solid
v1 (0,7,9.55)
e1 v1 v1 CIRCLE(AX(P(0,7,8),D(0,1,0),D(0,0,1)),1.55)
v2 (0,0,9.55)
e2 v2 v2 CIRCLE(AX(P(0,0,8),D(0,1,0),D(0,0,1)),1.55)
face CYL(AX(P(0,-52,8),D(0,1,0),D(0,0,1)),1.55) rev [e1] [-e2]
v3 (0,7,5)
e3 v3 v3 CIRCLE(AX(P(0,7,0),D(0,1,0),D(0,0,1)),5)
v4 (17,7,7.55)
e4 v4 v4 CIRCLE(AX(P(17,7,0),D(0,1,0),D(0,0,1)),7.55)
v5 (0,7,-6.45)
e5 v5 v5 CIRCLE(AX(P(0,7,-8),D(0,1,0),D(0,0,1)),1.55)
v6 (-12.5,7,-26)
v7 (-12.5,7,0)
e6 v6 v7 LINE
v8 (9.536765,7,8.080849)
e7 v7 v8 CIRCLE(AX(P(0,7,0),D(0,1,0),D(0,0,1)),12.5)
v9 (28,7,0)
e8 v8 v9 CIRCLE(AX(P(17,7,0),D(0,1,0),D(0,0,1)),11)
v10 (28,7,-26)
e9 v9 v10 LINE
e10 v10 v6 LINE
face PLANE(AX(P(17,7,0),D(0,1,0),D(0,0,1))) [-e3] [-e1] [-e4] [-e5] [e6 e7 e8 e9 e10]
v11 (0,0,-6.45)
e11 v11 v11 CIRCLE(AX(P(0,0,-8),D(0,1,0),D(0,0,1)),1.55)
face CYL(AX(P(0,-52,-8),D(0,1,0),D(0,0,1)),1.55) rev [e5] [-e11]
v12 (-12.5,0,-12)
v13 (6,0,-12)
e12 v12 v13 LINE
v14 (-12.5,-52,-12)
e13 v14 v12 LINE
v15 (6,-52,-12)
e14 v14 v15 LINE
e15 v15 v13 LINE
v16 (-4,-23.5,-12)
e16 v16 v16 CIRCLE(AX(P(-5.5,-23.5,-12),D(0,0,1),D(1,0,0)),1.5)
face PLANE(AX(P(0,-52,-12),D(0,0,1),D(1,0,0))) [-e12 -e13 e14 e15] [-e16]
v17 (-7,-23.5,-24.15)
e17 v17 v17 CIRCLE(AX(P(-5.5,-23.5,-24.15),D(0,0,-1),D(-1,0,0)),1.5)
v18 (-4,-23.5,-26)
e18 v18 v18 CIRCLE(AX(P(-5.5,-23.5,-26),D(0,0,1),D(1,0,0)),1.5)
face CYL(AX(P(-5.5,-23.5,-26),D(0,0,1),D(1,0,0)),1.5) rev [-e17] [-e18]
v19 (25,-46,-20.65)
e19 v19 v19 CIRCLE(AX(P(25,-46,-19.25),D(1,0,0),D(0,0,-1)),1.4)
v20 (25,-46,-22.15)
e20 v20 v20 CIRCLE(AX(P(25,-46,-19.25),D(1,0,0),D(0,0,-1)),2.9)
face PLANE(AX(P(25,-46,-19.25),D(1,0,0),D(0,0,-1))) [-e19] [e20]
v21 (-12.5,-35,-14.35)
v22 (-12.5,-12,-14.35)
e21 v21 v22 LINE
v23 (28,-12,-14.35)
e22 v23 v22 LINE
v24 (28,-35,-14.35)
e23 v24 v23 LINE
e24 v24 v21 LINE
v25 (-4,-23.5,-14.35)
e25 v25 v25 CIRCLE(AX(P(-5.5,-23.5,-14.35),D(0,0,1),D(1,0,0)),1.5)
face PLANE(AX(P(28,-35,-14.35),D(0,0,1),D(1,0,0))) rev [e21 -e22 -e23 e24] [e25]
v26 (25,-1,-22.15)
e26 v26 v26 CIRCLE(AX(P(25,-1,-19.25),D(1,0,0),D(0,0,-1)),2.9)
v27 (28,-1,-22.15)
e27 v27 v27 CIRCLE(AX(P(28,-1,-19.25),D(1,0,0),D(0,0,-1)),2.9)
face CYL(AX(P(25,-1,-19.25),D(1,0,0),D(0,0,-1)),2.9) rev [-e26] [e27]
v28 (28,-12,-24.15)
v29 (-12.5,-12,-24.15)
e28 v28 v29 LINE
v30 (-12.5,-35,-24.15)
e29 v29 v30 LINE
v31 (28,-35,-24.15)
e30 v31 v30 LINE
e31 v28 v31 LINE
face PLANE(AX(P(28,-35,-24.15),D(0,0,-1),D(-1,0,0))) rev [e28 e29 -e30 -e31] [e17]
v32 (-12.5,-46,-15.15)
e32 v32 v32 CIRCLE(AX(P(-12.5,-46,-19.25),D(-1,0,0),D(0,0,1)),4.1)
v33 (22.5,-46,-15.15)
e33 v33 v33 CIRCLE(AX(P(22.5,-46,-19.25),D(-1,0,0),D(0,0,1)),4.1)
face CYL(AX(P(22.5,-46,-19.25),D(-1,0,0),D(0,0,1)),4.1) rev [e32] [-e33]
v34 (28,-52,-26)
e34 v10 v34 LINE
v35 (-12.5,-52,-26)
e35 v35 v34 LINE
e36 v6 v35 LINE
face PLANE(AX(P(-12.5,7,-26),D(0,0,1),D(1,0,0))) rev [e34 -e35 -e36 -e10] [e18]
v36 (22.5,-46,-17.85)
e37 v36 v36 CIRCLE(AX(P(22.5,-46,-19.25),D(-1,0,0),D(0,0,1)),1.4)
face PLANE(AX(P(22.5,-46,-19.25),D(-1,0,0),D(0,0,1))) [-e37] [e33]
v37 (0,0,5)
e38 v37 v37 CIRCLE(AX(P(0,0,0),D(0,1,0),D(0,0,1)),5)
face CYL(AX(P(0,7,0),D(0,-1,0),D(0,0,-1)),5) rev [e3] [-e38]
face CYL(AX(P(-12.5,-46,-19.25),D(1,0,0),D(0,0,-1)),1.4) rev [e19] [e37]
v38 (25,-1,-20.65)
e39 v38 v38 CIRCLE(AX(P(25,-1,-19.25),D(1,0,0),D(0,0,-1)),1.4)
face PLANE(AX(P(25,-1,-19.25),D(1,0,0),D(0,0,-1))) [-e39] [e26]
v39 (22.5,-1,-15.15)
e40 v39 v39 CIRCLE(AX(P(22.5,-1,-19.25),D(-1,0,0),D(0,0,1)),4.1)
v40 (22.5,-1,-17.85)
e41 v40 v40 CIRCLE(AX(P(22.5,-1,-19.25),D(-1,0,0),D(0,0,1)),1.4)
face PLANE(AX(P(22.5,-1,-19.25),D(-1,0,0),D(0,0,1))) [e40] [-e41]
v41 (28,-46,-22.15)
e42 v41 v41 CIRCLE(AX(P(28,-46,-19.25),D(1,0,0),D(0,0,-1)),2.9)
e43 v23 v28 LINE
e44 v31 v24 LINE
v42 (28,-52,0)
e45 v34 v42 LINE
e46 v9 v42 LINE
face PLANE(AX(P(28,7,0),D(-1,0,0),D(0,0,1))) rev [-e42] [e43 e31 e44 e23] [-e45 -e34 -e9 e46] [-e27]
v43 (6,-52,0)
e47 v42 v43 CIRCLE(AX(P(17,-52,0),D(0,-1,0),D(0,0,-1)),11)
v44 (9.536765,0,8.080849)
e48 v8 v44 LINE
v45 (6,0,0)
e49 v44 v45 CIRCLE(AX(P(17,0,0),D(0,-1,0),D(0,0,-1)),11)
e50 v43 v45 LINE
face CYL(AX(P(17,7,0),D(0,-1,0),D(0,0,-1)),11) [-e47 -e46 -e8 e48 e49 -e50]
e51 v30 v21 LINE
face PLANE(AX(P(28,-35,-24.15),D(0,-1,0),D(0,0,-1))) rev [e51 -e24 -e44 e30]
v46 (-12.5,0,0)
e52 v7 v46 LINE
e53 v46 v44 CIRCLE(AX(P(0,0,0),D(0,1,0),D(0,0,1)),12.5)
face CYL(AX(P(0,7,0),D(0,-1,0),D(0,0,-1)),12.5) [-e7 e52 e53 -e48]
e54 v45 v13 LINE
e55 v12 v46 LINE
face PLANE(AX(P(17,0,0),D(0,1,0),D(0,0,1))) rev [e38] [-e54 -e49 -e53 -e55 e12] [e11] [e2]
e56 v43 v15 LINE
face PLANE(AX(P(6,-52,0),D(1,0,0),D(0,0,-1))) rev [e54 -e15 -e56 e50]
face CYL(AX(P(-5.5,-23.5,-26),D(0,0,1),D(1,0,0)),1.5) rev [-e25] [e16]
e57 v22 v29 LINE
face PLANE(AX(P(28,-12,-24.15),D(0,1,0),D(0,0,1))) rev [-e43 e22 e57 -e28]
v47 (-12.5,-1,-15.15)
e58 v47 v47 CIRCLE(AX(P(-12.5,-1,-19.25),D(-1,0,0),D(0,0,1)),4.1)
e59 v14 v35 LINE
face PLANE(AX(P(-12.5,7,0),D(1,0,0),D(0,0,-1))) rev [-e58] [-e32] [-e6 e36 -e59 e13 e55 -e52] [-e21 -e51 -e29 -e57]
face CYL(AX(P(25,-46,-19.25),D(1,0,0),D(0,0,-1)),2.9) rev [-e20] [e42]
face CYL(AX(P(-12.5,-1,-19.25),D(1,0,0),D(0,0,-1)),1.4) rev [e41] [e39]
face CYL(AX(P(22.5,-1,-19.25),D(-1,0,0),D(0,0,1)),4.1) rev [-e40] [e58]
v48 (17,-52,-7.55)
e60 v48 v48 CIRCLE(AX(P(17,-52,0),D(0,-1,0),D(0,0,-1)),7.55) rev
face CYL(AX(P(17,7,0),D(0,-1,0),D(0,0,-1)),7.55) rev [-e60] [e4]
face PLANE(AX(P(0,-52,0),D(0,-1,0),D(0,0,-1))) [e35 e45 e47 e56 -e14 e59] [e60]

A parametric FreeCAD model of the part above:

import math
import FreeCAD as App
import Part
import Sketcher
from FreeCAD import Vector
Q = App.Units.Quantity


def add_polygon(sketch, points):
    """Adds a closed chain of lines whose ends are joined by coincident constraints."""
    first, n = sketch.GeometryCount, len(points)
    for a, b in zip(points, points[1:] + points[:1]):
        sketch.addGeometry(Part.LineSegment(App.Vector(*a, 0), App.Vector(*b, 0)), False)
    for i in range(n):
        sketch.addConstraint(Sketcher.Constraint("Coincident", first + i, 2, first + (i + 1) % n, 1))

doc = App.newDocument("Part")
params = doc.addObject("Spreadsheet::Sheet", "Params")
for row, (alias, value) in enumerate([
    ("sketch1_diameter", "10 mm"),
    ("sketch1_radius", "11 mm"),
    ("sketch1_diameter2", "15.1 mm"),
    ("sketch1_radius2", "12.5 mm"),
    ("sketch1_height", "26 mm"),
    ("pad1_length", "7 mm"),
    ("sketch2_radius", "11 mm"),
    ("sketch2_diameter", "15.1 mm"),
    ("sketch2_height", "14 mm"),
    ("sketch2_height2", "26 mm"),
    ("sketch2_width", "40.5 mm"),
    ("pad2_length", "52 mm"),
    ("sketch3_diameter", "8.2 mm"),
    ("pocket1_length", "35 mm"),
    ("sketch4_width", "23 mm"),
    ("sketch4_height", "9.8 mm"),
    ("sketch5_diameter", "2.8 mm"),
    ("sketch6_diameter", "5.8 mm"),
    ("sketch6_diameter2", "2.8 mm"),
    ("pocket4_length", "3 mm"),
    ("sketch7_diameter", "3 mm"),
    ("sketch8_diameter", "3.1 mm"),
], start=1):
    params.set(f"A{row}", alias)
    params.set(f"B{row}", "=" + value)
    params.setAlias(f"B{row}", alias)

body = doc.addObject("PartDesign::Body", "Body")

# Sketch on XZ plane
sketch1 = body.newObject("Sketcher::SketchObject", "Sketch")
sketch1.AttachmentSupport = (doc.getObject("XZ_Plane"), [""])
sketch1.MapMode = "FlatFace"
sketch1.addGeometry([
    Part.LineSegment(Vector(28, 0, 0), Vector(28, -26, 0)),  # 0
    Part.LineSegment(Vector(28, -26, 0), Vector(-12.5, -26, 0)),  # 1
    Part.LineSegment(Vector(-12.5, -26, 0), Vector(-12.5, 0, 0)),  # 2
    Part.ArcOfCircle(Part.Circle(Vector(0, 0, 0), Vector(0, 0, 1), 12.5), math.radians(40.275824), math.radians(180)),  # 3
    Part.ArcOfCircle(Part.Circle(Vector(17, 0, 0), Vector(0, 0, 1), 11), math.radians(0), math.radians(132.724662)),  # 4
    Part.Circle(Vector(0, 0, 0), Vector(0, 0, 1), 5),  # 5
    Part.Circle(Vector(17, 0, 0), Vector(0, 0, 1), 7.55),  # 6
], False)
sketch1.addConstraint([
    Sketcher.Constraint("Coincident", 0, 2, 1, 1),
    Sketcher.Constraint("Coincident", 1, 2, 2, 1),
    Sketcher.Constraint("Tangent", 2, 2, 3, 2),
    Sketcher.Constraint("Coincident", 3, 1, 4, 2),
    Sketcher.Constraint("Tangent", 4, 1, 0, 1),
    Sketcher.Constraint("Vertical", 0),
    Sketcher.Constraint("Horizontal", 1),
    Sketcher.Constraint("Vertical", 2),
    Sketcher.Constraint("Coincident", 3, 3, -1, 1),
    Sketcher.Constraint("Coincident", 5, 3, -1, 1),
    Sketcher.Constraint("Coincident", 6, 3, 4, 3),
    Sketcher.Constraint("PointOnObject", 4, 3, -1),
    Sketcher.Constraint("Diameter", 5, Q("10 mm")),
    Sketcher.Constraint("Radius", 4, Q("11 mm")),
    Sketcher.Constraint("Diameter", 6, Q("15.1 mm")),
    Sketcher.Constraint("Radius", 3, Q("12.5 mm")),
    Sketcher.Constraint("DistanceY", 0, 2, 0, 1, Q("26 mm")),
    Sketcher.Constraint("DistanceX", 1, 2, 1, 1, Q("40.5 mm")),
])
sketch1.setExpression("Constraints[12]", "Params.sketch1_diameter")
sketch1.setExpression("Constraints[13]", "Params.sketch1_radius")
sketch1.setExpression("Constraints[14]", "Params.sketch1_diameter2")
sketch1.setExpression("Constraints[15]", "Params.sketch1_radius2")
sketch1.setExpression("Constraints[16]", "Params.sketch1_height")
pad1 = body.newObject("PartDesign::Pad", "Pad")
pad1.Profile = sketch1
pad1.setExpression("Length", "Params.pad1_length")
pad1.Reversed = True

# Sketch on XZ plane
sketch2 = body.newObject("Sketcher::SketchObject", "Sketch001")
sketch2.AttachmentSupport = (doc.getObject("XZ_Plane"), [""])
sketch2.MapMode = "FlatFace"
sketch2.addGeometry([
    Part.LineSegment(Vector(-12.5, -12, 0), Vector(-12.5, -26, 0)),  # 0
    Part.LineSegment(Vector(-12.5, -26, 0), Vector(28, -26, 0)),  # 1
    Part.LineSegment(Vector(28, -26, 0), Vector(28, 0, 0)),  # 2
    Part.ArcOfCircle(Part.Circle(Vector(17, 0, 0), Vector(0, 0, 1), 11), math.radians(0), math.radians(132.724662)),  # 3
    Part.ArcOfCircle(Part.Circle(Vector(17, 0, 0), Vector(0, 0, 1), 11), math.radians(132.724662), math.radians(180)),  # 4
    Part.LineSegment(Vector(6, 0, 0), Vector(6, -12, 0)),  # 5
    Part.LineSegment(Vector(6, -12, 0), Vector(-12.5, -12, 0)),  # 6
    Part.Circle(Vector(17, 0, 0), Vector(0, 0, 1), 7.55),  # 7
], False)
sketch2.addConstraint([
    Sketcher.Constraint("Coincident", 0, 2, 1, 1),
    Sketcher.Constraint("Coincident", 1, 2, 2, 1),
    Sketcher.Constraint("Tangent", 2, 2, 3, 1),
    Sketcher.Constraint("Tangent", 3, 2, 4, 1),
    Sketcher.Constraint("Tangent", 4, 2, 5, 1),
    Sketcher.Constraint("Coincident", 5, 2, 6, 1),
    Sketcher.Constraint("Coincident", 6, 2, 0, 1),
    Sketcher.Constraint("Vertical", 0),
    Sketcher.Constraint("Horizontal", 1),
    Sketcher.Constraint("Vertical", 2),
    Sketcher.Constraint("Vertical", 5),
    Sketcher.Constraint("Horizontal", 6),
    Sketcher.Constraint("Coincident", 7, 3, 3, 3),
    Sketcher.Constraint("Equal", 3, 4),
    Sketcher.Constraint("PointOnObject", 3, 3, -1),
    Sketcher.Constraint("Radius", 3, Q("11 mm")),
    Sketcher.Constraint("Diameter", 7, Q("15.1 mm")),
    Sketcher.Constraint("DistanceY", 0, 2, 0, 1, Q("14 mm")),
    Sketcher.Constraint("DistanceY", 2, 1, 2, 2, Q("26 mm")),
    Sketcher.Constraint("DistanceX", 1, 1, 1, 2, Q("40.5 mm")),
    Sketcher.Constraint("DistanceX", -1, 1, 3, 3, Q("17 mm")),
    Sketcher.Constraint("DistanceY", -1, 1, 3, 2, Q("8.080849 mm")),
])
sketch2.setExpression("Constraints[15]", "Params.sketch2_radius")
sketch2.setExpression("Constraints[16]", "Params.sketch2_diameter")
sketch2.setExpression("Constraints[17]", "Params.sketch2_height")
sketch2.setExpression("Constraints[18]", "Params.sketch2_height2")
sketch2.setExpression("Constraints[19]", "Params.sketch2_width")
pad2 = body.newObject("PartDesign::Pad", "Pad001")
pad2.Profile = sketch2
pad2.setExpression("Length", "Params.pad2_length")

# Sketch on YZ plane
sketch3 = body.newObject("Sketcher::SketchObject", "Sketch002")
sketch3.AttachmentSupport = (doc.getObject("YZ_Plane"), [""])
sketch3.MapMode = "FlatFace"
sketch3.AttachmentOffset = App.Placement(Vector(0, 0, -12.5), App.Rotation())
sketch3.addGeometry([
    Part.Circle(Vector(-1, -19.25, 0), Vector(0, 0, 1), 4.1),
    Part.Circle(Vector(-46, -19.25, 0), Vector(0, 0, 1), 4.1),
], False)
sketch3.addConstraint([
    Sketcher.Constraint("Equal", 0, 1),
    Sketcher.Constraint("Horizontal", 0, 3, 1, 3),
    Sketcher.Constraint("Diameter", 0, Q("8.2 mm")),
    Sketcher.Constraint("DistanceX", 0, 3, -1, 1, Q("1 mm")),
    Sketcher.Constraint("DistanceX", 1, 3, -1, 1, Q("46 mm")),
    Sketcher.Constraint("DistanceY", 0, 3, -1, 1, Q("19.25 mm")),
])
sketch3.setExpression("Constraints[2]", "Params.sketch3_diameter")
pocket1 = body.newObject("PartDesign::Pocket", "Pocket")
pocket1.Profile = sketch3
pocket1.setExpression("Length", "Params.pocket1_length")
pocket1.Reversed = True

# Sketch on YZ plane
sketch4 = body.newObject("Sketcher::SketchObject", "Sketch003")
sketch4.AttachmentSupport = (doc.getObject("YZ_Plane"), [""])
sketch4.MapMode = "FlatFace"
sketch4.AttachmentOffset = App.Placement(Vector(0, 0, -12.5), App.Rotation())
add_polygon(sketch4, [(-12, -24.15), (-35, -24.15), (-35, -14.35), (-12, -14.35)])  # lines 0-3
sketch4.addConstraint([
    Sketcher.Constraint("Horizontal", 0),
    Sketcher.Constraint("Vertical", 1),
    Sketcher.Constraint("Horizontal", 2),
    Sketcher.Constraint("Vertical", 3),
    Sketcher.Constraint("DistanceX", 0, 2, 0, 1, Q("23 mm")),
    Sketcher.Constraint("DistanceY", 1, 1, 1, 2, Q("9.8 mm")),
    Sketcher.Constraint("DistanceX", 0, 2, -1, 1, Q("35 mm")),
    Sketcher.Constraint("DistanceY", 0, 2, -1, 1, Q("24.15 mm")),
])
sketch4.setExpression("Constraints[8]", "Params.sketch4_width")
sketch4.setExpression("Constraints[9]", "Params.sketch4_height")
pocket2 = body.newObject("PartDesign::Pocket", "Pocket001")
pocket2.Profile = sketch4
pocket2.Type = "ThroughAll"
pocket2.Reversed = True

# Sketch on YZ plane
sketch5 = body.newObject("Sketcher::SketchObject", "Sketch004")
sketch5.AttachmentSupport = (doc.getObject("YZ_Plane"), [""])
sketch5.MapMode = "FlatFace"
sketch5.AttachmentOffset = App.Placement(Vector(0, 0, 28), App.Rotation())
sketch5.addGeometry([
    Part.Circle(Vector(-1, -19.25, 0), Vector(0, 0, 1), 1.4),
    Part.Circle(Vector(-46, -19.25, 0), Vector(0, 0, 1), 1.4),
], False)
sketch5.addConstraint([
    Sketcher.Constraint("Equal", 0, 1),
    Sketcher.Constraint("Horizontal", 0, 3, 1, 3),
    Sketcher.Constraint("Diameter", 0, Q("2.8 mm")),
    Sketcher.Constraint("DistanceX", 0, 3, -1, 1, Q("1 mm")),
    Sketcher.Constraint("DistanceX", 1, 3, -1, 1, Q("46 mm")),
    Sketcher.Constraint("DistanceY", 0, 3, -1, 1, Q("19.25 mm")),
])
sketch5.setExpression("Constraints[2]", "Params.sketch5_diameter")
pocket3 = body.newObject("PartDesign::Pocket", "Pocket002")
pocket3.Profile = sketch5
pocket3.Type = "ThroughAll"

# Sketch on YZ plane
sketch6 = body.newObject("Sketcher::SketchObject", "Sketch005")
sketch6.AttachmentSupport = (doc.getObject("YZ_Plane"), [""])
sketch6.MapMode = "FlatFace"
sketch6.AttachmentOffset = App.Placement(Vector(0, 0, 28), App.Rotation())
sketch6.addGeometry([
    Part.Circle(Vector(-1, -19.25, 0), Vector(0, 0, 1), 2.9),
    Part.Circle(Vector(-1, -19.25, 0), Vector(0, 0, 1), 1.4),
    Part.Circle(Vector(-46, -19.25, 0), Vector(0, 0, 1), 2.9),
    Part.Circle(Vector(-46, -19.25, 0), Vector(0, 0, 1), 1.4),
], False)
sketch6.addConstraint([
    Sketcher.Constraint("Coincident", 1, 3, 0, 3),
    Sketcher.Constraint("Coincident", 3, 3, 2, 3),
    Sketcher.Constraint("Equal", 0, 2),
    Sketcher.Constraint("Equal", 1, 3),
    Sketcher.Constraint("Horizontal", 1, 3, 2, 3),
    Sketcher.Constraint("Diameter", 0, Q("5.8 mm")),
    Sketcher.Constraint("Diameter", 1, Q("2.8 mm")),
    Sketcher.Constraint("DistanceX", 0, 3, -1, 1, Q("1 mm")),
    Sketcher.Constraint("DistanceX", 2, 3, -1, 1, Q("46 mm")),
    Sketcher.Constraint("DistanceY", 0, 3, -1, 1, Q("19.25 mm")),
])
sketch6.setExpression("Constraints[5]", "Params.sketch6_diameter")
sketch6.setExpression("Constraints[6]", "Params.sketch6_diameter2")
pocket4 = body.newObject("PartDesign::Pocket", "Pocket003")
pocket4.Profile = sketch6
pocket4.setExpression("Length", "Params.pocket4_length")

# Sketch on XY plane
sketch7 = body.newObject("Sketcher::SketchObject", "Sketch006")
sketch7.AttachmentSupport = (doc.getObject("XY_Plane"), [""])
sketch7.MapMode = "FlatFace"
sketch7.AttachmentOffset = App.Placement(Vector(0, 0, -12), App.Rotation())
sketch7.addGeometry(Part.Circle(Vector(-5.5, -23.5, 0), Vector(0, 0, 1), 1.5), False)
sketch7.addConstraint([
    Sketcher.Constraint("Diameter", 0, Q("3 mm")),
    Sketcher.Constraint("DistanceX", 0, 3, -1, 1, Q("5.5 mm")),
    Sketcher.Constraint("DistanceY", 0, 3, -1, 1, Q("23.5 mm")),
])
sketch7.setExpression("Constraints[0]", "Params.sketch7_diameter")
pocket5 = body.newObject("PartDesign::Pocket", "Pocket004")
pocket5.Profile = sketch7
pocket5.Type = "ThroughAll"

# Sketch on XZ plane
sketch8 = body.newObject("Sketcher::SketchObject", "Sketch007")
sketch8.AttachmentSupport = (doc.getObject("XZ_Plane"), [""])
sketch8.MapMode = "FlatFace"
sketch8.AttachmentOffset = App.Placement(Vector(0, 0, -7), App.Rotation())
sketch8.addGeometry([
    Part.Circle(Vector(0, -8, 0), Vector(0, 0, 1), 1.55),
    Part.Circle(Vector(0, 8, 0), Vector(0, 0, 1), 1.55),
], False)
sketch8.addConstraint([
    Sketcher.Constraint("Equal", 0, 1),
    Sketcher.Constraint("Symmetric", 0, 3, 1, 3, -1, 1),
    Sketcher.Constraint("PointOnObject", 0, 3, -2),
    Sketcher.Constraint("Diameter", 0, Q("3.1 mm")),
    Sketcher.Constraint("DistanceY", 0, 3, -1, 1, Q("8 mm")),
])
sketch8.setExpression("Constraints[3]", "Params.sketch8_diameter")
pocket6 = body.newObject("PartDesign::Pocket", "Pocket005")
pocket6.Profile = sketch8
pocket6.Type = "ThroughAll"
pocket6.Reversed = True

doc.recompute()
